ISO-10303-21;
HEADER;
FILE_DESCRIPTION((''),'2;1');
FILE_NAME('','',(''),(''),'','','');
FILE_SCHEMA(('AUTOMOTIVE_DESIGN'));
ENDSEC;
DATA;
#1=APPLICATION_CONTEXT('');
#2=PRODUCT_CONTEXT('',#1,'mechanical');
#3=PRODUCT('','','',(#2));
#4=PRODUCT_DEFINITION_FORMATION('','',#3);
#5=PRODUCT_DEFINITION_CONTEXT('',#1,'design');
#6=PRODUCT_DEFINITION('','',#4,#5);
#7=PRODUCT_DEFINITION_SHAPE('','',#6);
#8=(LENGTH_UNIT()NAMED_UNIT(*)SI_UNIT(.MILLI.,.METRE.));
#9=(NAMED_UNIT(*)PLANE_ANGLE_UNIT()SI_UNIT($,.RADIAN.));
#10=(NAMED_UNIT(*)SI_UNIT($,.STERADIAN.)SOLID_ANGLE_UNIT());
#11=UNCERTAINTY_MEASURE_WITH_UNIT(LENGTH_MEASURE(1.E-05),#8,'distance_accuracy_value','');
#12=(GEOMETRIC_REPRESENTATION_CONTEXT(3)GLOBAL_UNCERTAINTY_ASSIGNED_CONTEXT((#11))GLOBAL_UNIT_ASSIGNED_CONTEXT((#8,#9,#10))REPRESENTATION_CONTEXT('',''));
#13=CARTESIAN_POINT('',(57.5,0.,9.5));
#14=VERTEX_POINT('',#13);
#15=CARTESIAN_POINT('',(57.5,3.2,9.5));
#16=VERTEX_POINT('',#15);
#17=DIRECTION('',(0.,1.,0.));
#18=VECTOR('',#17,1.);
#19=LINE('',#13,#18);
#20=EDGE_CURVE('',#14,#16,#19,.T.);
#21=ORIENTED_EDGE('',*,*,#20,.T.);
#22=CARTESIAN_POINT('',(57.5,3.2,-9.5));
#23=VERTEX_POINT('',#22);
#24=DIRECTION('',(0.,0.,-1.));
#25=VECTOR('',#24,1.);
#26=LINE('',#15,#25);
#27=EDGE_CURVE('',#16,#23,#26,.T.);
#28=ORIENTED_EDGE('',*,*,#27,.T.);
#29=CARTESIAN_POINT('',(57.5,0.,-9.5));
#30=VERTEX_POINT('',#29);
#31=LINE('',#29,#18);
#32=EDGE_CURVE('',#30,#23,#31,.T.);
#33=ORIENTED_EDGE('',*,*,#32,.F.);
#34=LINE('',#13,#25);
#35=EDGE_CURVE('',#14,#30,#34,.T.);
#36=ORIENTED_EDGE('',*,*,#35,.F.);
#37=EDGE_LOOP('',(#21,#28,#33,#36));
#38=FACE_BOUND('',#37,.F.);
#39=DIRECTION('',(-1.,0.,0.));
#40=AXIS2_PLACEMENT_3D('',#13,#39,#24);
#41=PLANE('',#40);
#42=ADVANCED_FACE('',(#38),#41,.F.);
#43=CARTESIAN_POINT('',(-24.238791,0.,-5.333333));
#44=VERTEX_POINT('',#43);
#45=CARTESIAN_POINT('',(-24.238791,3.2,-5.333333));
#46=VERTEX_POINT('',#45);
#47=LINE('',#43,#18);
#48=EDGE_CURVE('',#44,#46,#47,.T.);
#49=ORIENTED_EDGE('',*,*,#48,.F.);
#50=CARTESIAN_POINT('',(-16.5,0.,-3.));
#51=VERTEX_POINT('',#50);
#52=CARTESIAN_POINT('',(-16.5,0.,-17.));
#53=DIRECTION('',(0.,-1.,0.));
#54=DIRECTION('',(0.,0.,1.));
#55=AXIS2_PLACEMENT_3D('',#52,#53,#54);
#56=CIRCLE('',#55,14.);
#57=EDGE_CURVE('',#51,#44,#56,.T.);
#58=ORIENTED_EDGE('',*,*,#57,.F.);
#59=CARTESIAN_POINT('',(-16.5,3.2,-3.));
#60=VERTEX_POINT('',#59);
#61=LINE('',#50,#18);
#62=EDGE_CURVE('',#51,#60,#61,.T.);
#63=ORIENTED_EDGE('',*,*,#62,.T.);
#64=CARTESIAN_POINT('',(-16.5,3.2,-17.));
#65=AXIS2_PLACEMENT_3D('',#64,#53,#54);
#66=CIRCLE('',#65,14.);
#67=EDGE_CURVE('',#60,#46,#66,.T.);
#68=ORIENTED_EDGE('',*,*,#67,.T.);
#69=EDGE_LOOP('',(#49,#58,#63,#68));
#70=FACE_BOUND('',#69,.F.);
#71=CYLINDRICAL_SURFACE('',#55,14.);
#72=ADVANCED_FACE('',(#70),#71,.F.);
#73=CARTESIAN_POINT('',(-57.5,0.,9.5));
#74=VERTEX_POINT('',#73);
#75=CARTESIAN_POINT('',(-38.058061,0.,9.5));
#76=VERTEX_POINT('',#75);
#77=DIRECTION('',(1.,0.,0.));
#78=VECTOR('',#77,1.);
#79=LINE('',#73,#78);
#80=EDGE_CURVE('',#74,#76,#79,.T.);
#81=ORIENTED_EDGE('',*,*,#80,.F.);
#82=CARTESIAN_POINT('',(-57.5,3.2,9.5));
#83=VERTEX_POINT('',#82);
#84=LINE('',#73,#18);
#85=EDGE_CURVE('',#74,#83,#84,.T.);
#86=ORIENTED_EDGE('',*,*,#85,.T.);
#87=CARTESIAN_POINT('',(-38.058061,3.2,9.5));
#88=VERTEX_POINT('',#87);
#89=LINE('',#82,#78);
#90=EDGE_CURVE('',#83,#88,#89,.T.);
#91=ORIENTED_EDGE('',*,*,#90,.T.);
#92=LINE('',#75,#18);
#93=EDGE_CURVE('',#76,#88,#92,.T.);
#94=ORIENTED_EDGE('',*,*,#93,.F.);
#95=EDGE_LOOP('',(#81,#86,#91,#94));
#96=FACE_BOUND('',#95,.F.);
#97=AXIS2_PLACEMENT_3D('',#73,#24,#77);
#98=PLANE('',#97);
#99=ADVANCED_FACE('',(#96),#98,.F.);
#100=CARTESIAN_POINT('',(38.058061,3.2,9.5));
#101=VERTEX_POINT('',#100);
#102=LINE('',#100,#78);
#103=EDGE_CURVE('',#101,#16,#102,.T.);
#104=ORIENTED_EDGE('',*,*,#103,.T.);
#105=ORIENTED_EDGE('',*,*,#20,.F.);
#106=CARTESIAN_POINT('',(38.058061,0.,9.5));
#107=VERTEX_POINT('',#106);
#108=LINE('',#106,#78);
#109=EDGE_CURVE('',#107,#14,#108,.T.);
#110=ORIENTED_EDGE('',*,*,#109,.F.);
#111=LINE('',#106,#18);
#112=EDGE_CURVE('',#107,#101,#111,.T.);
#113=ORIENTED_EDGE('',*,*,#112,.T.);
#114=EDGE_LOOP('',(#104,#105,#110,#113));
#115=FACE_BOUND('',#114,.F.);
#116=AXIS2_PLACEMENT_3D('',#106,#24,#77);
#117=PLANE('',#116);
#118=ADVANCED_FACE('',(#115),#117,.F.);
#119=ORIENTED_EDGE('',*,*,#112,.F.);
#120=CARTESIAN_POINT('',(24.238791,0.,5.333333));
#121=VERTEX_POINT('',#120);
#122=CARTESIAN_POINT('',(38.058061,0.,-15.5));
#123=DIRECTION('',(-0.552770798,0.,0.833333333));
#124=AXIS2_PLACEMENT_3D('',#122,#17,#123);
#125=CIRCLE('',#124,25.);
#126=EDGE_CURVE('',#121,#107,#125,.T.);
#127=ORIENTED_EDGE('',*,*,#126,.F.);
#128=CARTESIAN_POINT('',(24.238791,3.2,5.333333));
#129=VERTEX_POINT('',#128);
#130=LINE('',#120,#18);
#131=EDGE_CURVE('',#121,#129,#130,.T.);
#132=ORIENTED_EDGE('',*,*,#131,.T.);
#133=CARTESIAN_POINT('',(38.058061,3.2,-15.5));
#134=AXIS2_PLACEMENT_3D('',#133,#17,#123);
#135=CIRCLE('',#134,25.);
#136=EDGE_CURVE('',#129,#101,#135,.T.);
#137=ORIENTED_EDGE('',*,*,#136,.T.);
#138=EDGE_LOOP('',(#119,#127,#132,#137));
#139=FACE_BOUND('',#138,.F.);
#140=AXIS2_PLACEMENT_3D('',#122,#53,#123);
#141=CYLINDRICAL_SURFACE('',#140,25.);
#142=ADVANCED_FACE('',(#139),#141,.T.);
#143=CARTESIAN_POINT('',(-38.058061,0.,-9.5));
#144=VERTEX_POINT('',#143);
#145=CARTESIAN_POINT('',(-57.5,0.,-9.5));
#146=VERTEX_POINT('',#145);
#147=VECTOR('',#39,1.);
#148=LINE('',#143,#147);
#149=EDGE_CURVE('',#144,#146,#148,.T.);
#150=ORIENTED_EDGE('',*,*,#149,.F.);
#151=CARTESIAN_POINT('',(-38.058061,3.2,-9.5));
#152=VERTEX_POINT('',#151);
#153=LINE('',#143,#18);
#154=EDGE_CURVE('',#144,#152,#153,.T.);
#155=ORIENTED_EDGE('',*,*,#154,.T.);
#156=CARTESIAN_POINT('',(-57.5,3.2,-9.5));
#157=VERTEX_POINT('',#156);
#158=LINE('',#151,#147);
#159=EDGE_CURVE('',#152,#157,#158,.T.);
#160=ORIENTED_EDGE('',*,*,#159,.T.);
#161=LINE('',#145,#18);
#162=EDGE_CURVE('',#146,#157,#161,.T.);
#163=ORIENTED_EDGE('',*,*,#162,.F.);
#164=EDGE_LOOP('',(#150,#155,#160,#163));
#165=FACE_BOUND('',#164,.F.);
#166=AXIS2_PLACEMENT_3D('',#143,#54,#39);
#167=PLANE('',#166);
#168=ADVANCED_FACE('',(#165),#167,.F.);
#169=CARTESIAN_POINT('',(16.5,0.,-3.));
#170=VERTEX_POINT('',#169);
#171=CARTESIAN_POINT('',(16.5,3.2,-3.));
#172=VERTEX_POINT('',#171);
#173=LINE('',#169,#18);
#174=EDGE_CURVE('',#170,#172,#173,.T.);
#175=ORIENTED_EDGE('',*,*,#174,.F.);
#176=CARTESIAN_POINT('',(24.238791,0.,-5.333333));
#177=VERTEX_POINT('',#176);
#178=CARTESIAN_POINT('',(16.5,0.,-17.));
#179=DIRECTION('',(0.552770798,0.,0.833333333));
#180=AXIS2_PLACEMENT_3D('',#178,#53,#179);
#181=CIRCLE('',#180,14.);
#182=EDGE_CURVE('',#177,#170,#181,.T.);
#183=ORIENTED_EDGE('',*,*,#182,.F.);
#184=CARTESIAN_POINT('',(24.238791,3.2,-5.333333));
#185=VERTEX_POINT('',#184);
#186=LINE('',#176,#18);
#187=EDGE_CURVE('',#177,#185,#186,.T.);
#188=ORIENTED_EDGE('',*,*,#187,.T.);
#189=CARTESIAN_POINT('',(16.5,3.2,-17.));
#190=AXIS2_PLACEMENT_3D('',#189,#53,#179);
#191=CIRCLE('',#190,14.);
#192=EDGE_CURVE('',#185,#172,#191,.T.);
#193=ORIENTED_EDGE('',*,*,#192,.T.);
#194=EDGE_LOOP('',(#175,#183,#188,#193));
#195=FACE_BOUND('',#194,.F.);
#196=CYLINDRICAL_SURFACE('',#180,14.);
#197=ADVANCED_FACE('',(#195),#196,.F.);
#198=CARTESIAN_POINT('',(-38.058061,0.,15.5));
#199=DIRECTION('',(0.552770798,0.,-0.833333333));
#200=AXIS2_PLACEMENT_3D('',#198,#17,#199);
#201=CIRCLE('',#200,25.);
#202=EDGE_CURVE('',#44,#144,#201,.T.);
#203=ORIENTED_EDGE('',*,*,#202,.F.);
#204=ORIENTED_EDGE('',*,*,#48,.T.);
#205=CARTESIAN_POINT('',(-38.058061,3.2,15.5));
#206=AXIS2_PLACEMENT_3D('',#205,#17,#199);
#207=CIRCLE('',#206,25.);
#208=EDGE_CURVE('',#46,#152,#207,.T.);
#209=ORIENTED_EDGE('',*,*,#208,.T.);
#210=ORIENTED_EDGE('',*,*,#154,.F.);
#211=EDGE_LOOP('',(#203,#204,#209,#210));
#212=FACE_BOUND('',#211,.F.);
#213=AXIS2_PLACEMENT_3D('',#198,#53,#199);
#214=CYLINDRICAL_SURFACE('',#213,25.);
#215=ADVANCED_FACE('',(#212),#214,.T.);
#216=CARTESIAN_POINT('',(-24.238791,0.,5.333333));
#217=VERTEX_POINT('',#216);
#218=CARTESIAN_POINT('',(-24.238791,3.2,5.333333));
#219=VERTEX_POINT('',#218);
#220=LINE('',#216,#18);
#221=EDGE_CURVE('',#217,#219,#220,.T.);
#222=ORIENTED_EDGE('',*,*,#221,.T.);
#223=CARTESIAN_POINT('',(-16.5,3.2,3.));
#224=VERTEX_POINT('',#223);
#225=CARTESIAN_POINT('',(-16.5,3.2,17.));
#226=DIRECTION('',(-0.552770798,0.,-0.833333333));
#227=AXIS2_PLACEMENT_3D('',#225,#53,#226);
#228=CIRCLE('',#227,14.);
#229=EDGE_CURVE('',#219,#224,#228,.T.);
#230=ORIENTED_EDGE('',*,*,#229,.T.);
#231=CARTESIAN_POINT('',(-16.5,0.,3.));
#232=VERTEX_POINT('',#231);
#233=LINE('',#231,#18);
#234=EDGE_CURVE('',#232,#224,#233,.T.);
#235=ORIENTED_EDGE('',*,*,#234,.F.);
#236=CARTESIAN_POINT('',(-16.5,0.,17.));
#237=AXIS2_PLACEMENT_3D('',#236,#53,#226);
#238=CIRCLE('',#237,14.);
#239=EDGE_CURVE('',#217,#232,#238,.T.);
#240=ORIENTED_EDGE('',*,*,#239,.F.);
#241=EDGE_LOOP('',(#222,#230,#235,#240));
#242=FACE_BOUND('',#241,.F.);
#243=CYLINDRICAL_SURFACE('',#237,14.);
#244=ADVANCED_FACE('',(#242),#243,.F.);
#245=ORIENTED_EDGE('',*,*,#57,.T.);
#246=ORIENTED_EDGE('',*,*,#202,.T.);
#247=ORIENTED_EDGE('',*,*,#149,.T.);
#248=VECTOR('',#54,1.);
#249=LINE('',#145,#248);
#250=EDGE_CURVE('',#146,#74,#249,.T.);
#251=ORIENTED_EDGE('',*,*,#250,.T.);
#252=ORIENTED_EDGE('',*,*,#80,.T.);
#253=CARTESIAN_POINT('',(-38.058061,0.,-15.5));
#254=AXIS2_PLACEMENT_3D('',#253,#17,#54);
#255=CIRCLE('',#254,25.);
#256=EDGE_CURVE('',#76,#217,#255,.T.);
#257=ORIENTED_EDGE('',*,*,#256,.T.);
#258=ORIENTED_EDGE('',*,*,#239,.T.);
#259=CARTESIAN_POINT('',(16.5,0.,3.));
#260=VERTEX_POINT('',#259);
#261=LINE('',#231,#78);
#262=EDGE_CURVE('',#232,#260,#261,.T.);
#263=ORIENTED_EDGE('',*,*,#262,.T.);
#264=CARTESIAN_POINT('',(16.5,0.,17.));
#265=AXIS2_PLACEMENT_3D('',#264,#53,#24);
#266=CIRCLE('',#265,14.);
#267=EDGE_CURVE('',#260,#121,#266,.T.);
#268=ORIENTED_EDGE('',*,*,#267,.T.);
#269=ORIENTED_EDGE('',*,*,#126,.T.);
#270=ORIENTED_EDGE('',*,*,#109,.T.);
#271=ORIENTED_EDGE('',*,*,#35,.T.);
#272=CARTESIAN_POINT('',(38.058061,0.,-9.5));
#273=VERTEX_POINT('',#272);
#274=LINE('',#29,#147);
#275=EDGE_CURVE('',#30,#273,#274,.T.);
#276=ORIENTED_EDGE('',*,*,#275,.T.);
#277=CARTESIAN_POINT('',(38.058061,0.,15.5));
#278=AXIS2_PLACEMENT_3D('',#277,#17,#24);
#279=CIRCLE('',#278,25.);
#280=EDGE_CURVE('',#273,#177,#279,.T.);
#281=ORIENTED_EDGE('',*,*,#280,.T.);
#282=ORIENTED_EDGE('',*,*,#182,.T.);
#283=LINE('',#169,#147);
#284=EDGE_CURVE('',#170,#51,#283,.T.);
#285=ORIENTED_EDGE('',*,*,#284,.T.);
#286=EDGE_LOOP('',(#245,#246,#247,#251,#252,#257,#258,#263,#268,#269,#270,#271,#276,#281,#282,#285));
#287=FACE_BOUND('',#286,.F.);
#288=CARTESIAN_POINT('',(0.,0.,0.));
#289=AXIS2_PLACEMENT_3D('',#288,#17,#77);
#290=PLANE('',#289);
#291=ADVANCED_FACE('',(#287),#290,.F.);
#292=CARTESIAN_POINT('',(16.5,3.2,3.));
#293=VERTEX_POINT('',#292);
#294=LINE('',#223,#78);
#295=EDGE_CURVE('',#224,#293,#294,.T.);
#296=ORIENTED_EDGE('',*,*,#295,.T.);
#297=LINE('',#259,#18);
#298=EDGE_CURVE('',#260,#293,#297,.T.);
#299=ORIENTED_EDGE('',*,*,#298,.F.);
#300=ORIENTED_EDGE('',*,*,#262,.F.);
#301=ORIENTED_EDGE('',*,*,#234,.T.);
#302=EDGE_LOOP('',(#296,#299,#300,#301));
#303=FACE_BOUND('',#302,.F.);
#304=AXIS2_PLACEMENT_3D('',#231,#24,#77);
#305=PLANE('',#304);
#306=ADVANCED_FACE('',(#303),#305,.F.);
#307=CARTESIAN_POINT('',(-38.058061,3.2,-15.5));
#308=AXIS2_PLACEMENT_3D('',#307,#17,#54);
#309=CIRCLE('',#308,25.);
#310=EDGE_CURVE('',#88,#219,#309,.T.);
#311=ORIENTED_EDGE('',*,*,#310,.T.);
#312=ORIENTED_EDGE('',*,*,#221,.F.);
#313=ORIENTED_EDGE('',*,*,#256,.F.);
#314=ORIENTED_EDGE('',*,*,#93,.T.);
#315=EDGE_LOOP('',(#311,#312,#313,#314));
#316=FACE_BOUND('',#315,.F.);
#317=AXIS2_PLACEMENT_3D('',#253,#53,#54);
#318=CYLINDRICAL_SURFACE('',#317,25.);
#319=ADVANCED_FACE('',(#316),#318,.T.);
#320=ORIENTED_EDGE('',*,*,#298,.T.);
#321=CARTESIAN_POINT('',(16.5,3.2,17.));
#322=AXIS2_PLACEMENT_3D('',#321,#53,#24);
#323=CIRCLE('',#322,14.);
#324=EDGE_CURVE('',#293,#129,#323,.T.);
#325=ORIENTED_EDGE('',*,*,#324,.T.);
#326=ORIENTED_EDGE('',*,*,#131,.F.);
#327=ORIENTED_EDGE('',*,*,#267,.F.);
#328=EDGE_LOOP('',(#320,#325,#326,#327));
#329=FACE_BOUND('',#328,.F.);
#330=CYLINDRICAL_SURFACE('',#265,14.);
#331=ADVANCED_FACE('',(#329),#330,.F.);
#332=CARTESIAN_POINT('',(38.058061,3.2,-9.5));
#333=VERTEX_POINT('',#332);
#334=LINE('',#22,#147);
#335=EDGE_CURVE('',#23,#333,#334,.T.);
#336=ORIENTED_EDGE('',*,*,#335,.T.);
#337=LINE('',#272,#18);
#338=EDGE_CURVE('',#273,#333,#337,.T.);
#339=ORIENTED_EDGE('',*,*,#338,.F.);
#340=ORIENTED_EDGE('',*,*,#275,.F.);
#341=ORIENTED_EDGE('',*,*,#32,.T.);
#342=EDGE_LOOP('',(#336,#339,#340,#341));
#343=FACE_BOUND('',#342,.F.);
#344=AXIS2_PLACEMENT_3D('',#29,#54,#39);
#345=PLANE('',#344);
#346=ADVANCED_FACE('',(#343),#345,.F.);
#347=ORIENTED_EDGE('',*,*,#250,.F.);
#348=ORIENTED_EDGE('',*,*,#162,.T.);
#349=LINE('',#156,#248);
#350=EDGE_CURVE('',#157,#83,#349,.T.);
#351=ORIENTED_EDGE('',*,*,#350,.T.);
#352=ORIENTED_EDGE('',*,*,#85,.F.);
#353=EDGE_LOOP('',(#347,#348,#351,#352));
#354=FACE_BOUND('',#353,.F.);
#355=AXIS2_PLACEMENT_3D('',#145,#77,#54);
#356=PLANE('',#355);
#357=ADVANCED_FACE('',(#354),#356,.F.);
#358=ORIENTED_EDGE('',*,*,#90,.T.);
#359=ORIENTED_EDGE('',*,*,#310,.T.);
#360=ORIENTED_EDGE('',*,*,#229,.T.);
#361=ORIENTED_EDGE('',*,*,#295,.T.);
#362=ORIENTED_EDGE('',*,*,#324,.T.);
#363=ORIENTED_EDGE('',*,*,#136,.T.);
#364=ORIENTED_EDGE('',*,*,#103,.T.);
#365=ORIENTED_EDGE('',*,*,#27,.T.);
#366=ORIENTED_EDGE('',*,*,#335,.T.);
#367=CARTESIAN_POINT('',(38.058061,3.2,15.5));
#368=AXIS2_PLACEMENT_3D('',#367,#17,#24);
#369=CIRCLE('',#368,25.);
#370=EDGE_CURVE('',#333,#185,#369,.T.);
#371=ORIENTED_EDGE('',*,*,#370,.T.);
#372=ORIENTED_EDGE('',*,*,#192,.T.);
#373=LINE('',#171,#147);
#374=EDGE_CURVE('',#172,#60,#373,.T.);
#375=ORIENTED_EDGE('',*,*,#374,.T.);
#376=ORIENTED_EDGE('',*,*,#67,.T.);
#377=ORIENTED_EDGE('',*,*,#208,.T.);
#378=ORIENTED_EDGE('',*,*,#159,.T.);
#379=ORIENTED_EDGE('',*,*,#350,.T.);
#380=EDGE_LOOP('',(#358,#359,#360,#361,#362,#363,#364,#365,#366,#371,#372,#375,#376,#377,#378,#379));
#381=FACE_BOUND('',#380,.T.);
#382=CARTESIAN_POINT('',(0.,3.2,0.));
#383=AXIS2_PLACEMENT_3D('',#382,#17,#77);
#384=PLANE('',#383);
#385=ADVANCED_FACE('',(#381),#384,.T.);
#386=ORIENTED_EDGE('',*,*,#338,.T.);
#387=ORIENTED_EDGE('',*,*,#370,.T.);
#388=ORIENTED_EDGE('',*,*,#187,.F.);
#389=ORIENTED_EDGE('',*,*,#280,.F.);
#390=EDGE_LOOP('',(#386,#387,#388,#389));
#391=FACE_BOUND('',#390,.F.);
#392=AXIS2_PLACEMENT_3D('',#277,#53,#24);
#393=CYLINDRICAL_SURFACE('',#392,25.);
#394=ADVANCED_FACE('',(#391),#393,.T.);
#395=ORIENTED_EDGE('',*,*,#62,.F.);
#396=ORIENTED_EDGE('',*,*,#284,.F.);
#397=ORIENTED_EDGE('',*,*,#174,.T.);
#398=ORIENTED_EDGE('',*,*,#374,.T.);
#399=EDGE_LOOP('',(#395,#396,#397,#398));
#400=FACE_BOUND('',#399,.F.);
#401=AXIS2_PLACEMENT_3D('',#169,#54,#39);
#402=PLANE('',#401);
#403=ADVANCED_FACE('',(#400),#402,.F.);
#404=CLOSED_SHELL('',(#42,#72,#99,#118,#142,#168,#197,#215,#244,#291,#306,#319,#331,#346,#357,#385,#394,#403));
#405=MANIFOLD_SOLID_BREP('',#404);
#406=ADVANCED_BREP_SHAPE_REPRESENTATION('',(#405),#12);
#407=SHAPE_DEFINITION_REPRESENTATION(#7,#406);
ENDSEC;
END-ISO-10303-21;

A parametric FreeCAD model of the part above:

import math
import FreeCAD as App
import Part
import Sketcher
from FreeCAD import Vector

doc = App.newDocument("Part")
params = doc.addObject("Spreadsheet::Sheet", "Params")
for row, (alias, value) in enumerate([
    ("sketch1_radius", "25 mm"),
    ("sketch1_radius2", "14 mm"),
    ("sketch1_width", "33 mm"),
    ("sketch1_height", "19 mm"),
    ("pad1_length", "3.2 mm"),
], start=1):
    params.set(f"A{row}", alias)
    params.set(f"B{row}", "=" + value)
    params.setAlias(f"B{row}", alias)

body = doc.addObject("PartDesign::Body", "Body")

# Sketch on XZ plane
sketch1 = doc.addObject("Sketcher::SketchObject", "Sketch")
body.addObject(sketch1)
sketch1.AttachmentSupport = (doc.XZ_Plane, [""])
sketch1.MapMode = "FlatFace"
sketch1.addGeometry(Part.LineSegment(Vector(38, 10, 0), Vector(58, 10, 0)), False)
sketch1.addGeometry(Part.LineSegment(Vector(58, 10, 0), Vector(58, -10, 0)), False)
sketch1.addGeometry(Part.LineSegment(Vector(58, -10, 0), Vector(38, -10, 0)), False)
sketch1.addGeometry(Part.ArcOfCircle(Part.Circle(Vector(38, 15, 0), Vector(0, 0, 1), 25), math.radians(-124), math.radians(-90)), False)
sketch1.addGeometry(Part.ArcOfCircle(Part.Circle(Vector(17, -17, 0), Vector(0, 0, 1), 14), math.radians(56), math.radians(90)), False)
sketch1.addGeometry(Part.LineSegment(Vector(16, -3, 0), Vector(-16, -3, 0)), False)
sketch1.addGeometry(Part.ArcOfCircle(Part.Circle(Vector(-17, -17, 0), Vector(0, 0, 1), 14), math.radians(90), math.radians(124)), False)
sketch1.addGeometry(Part.ArcOfCircle(Part.Circle(Vector(-38, 15, 0), Vector(0, 0, 1), 25), math.radians(-90), math.radians(-56)), False)
sketch1.addGeometry(Part.LineSegment(Vector(-38, -10, 0), Vector(-58, -10, 0)), False)
sketch1.addGeometry(Part.LineSegment(Vector(-58, -10, 0), Vector(-58, 10, 0)), False)
sketch1.addGeometry(Part.LineSegment(Vector(-58, 10, 0), Vector(-38, 10, 0)), False)
sketch1.addGeometry(Part.ArcOfCircle(Part.Circle(Vector(-38, -15, 0), Vector(0, 0, 1), 25), math.radians(56), math.radians(90)), False)
sketch1.addGeometry(Part.ArcOfCircle(Part.Circle(Vector(-17, 17, 0), Vector(0, 0, 1), 14), math.radians(-124), math.radians(-90)), False)
sketch1.addGeometry(Part.LineSegment(Vector(-16, 3, 0), Vector(16, 3, 0)), False)
sketch1.addGeometry(Part.ArcOfCircle(Part.Circle(Vector(17, 17, 0), Vector(0, 0, 1), 14), math.radians(-90), math.radians(-56)), False)
sketch1.addGeometry(Part.ArcOfCircle(Part.Circle(Vector(38, -15, 0), Vector(0, 0, 1), 25), math.radians(90), math.radians(124)), False)
sketch1.addConstraint(Sketcher.Constraint("Coincident", 0, 2, 1, 1))
sketch1.addConstraint(Sketcher.Constraint("Coincident", 1, 2, 2, 1))
sketch1.addConstraint(Sketcher.Constraint("Tangent", 2, 2, 3, 2))
sketch1.addConstraint(Sketcher.Constraint("Tangent", 3, 1, 4, 1))
sketch1.addConstraint(Sketcher.Constraint("Tangent", 4, 2, 5, 1))
sketch1.addConstraint(Sketcher.Constraint("Tangent", 5, 2, 6, 1))
sketch1.addConstraint(Sketcher.Constraint("Tangent", 6, 2, 7, 2))
sketch1.addConstraint(Sketcher.Constraint("Tangent", 7, 1, 8, 1))
sketch1.addConstraint(Sketcher.Constraint("Coincident", 8, 2, 9, 1))
sketch1.addConstraint(Sketcher.Constraint("Coincident", 9, 2, 10, 1))
sketch1.addConstraint(Sketcher.Constraint("Tangent", 10, 2, 11, 2))
sketch1.addConstraint(Sketcher.Constraint("Tangent", 11, 1, 12, 1))
sketch1.addConstraint(Sketcher.Constraint("Tangent", 12, 2, 13, 1))
sketch1.addConstraint(Sketcher.Constraint("Tangent", 13, 2, 14, 1))
sketch1.addConstraint(Sketcher.Constraint("Tangent", 14, 2, 15, 2))
sketch1.addConstraint(Sketcher.Constraint("Tangent", 15, 1, 0, 1))
sketch1.addConstraint(Sketcher.Constraint("Horizontal", 0))
sketch1.addConstraint(Sketcher.Constraint("Vertical", 1))
sketch1.addConstraint(Sketcher.Constraint("Horizontal", 2))
sketch1.addConstraint(Sketcher.Constraint("Horizontal", 5))
sketch1.addConstraint(Sketcher.Constraint("Horizontal", 8))
sketch1.addConstraint(Sketcher.Constraint("Vertical", 9))
sketch1.addConstraint(Sketcher.Constraint("Horizontal", 10))
sketch1.addConstraint(Sketcher.Constraint("Horizontal", 13))
sketch1.addConstraint(Sketcher.Constraint("Equal", 4, 6))
sketch1.addConstraint(Sketcher.Constraint("Equal", 3, 7))
sketch1.addConstraint(Sketcher.Constraint("Equal", 7, 11))
sketch1.addConstraint(Sketcher.Constraint("Equal", 6, 12))
sketch1.addConstraint(Sketcher.Constraint("Equal", 12, 14))
sketch1.addConstraint(Sketcher.Constraint("Equal", 11, 15))
sketch1.addConstraint(Sketcher.Constraint("Symmetric", 3, 3, 11, 3, -1, 1))
sketch1.addConstraint(Sketcher.Constraint("Symmetric", 6, 3, 14, 3, -1, 1))
sketch1.addConstraint(Sketcher.Constraint("Symmetric", 0, 2, 8, 2, -1, 1))
sketch1.addConstraint(Sketcher.Constraint("Symmetric", 3, 3, 7, 3, -2))
sketch1.addConstraint(Sketcher.Constraint("Radius", 3, 25.0))
sketch1.addConstraint(Sketcher.Constraint("Radius", 4, 14.0))
sketch1.addConstraint(Sketcher.Constraint("DistanceX", 5, 2, 5, 1, 33.0))
sketch1.addConstraint(Sketcher.Constraint("DistanceY", 1, 2, 1, 1, 19.0))
sketch1.addConstraint(Sketcher.Constraint("DistanceY", 4, 3, -1, 1, 17.0))
sketch1.addConstraint(Sketcher.Constraint("DistanceX", 14, 3, 0, 2, 41.0))
sketch1.setExpression("Constraints[34]", "Params.sketch1_radius")
sketch1.setExpression("Constraints[35]", "Params.sketch1_radius2")
sketch1.setExpression("Constraints[36]", "Params.sketch1_width")
sketch1.setExpression("Constraints[37]", "Params.sketch1_height")
pad1 = doc.addObject("PartDesign::Pad", "Pad")
body.addObject(pad1)
pad1.Profile = sketch1
pad1.setExpression("Length", "Params.pad1_length")
pad1.Reversed = True

doc.recompute()
